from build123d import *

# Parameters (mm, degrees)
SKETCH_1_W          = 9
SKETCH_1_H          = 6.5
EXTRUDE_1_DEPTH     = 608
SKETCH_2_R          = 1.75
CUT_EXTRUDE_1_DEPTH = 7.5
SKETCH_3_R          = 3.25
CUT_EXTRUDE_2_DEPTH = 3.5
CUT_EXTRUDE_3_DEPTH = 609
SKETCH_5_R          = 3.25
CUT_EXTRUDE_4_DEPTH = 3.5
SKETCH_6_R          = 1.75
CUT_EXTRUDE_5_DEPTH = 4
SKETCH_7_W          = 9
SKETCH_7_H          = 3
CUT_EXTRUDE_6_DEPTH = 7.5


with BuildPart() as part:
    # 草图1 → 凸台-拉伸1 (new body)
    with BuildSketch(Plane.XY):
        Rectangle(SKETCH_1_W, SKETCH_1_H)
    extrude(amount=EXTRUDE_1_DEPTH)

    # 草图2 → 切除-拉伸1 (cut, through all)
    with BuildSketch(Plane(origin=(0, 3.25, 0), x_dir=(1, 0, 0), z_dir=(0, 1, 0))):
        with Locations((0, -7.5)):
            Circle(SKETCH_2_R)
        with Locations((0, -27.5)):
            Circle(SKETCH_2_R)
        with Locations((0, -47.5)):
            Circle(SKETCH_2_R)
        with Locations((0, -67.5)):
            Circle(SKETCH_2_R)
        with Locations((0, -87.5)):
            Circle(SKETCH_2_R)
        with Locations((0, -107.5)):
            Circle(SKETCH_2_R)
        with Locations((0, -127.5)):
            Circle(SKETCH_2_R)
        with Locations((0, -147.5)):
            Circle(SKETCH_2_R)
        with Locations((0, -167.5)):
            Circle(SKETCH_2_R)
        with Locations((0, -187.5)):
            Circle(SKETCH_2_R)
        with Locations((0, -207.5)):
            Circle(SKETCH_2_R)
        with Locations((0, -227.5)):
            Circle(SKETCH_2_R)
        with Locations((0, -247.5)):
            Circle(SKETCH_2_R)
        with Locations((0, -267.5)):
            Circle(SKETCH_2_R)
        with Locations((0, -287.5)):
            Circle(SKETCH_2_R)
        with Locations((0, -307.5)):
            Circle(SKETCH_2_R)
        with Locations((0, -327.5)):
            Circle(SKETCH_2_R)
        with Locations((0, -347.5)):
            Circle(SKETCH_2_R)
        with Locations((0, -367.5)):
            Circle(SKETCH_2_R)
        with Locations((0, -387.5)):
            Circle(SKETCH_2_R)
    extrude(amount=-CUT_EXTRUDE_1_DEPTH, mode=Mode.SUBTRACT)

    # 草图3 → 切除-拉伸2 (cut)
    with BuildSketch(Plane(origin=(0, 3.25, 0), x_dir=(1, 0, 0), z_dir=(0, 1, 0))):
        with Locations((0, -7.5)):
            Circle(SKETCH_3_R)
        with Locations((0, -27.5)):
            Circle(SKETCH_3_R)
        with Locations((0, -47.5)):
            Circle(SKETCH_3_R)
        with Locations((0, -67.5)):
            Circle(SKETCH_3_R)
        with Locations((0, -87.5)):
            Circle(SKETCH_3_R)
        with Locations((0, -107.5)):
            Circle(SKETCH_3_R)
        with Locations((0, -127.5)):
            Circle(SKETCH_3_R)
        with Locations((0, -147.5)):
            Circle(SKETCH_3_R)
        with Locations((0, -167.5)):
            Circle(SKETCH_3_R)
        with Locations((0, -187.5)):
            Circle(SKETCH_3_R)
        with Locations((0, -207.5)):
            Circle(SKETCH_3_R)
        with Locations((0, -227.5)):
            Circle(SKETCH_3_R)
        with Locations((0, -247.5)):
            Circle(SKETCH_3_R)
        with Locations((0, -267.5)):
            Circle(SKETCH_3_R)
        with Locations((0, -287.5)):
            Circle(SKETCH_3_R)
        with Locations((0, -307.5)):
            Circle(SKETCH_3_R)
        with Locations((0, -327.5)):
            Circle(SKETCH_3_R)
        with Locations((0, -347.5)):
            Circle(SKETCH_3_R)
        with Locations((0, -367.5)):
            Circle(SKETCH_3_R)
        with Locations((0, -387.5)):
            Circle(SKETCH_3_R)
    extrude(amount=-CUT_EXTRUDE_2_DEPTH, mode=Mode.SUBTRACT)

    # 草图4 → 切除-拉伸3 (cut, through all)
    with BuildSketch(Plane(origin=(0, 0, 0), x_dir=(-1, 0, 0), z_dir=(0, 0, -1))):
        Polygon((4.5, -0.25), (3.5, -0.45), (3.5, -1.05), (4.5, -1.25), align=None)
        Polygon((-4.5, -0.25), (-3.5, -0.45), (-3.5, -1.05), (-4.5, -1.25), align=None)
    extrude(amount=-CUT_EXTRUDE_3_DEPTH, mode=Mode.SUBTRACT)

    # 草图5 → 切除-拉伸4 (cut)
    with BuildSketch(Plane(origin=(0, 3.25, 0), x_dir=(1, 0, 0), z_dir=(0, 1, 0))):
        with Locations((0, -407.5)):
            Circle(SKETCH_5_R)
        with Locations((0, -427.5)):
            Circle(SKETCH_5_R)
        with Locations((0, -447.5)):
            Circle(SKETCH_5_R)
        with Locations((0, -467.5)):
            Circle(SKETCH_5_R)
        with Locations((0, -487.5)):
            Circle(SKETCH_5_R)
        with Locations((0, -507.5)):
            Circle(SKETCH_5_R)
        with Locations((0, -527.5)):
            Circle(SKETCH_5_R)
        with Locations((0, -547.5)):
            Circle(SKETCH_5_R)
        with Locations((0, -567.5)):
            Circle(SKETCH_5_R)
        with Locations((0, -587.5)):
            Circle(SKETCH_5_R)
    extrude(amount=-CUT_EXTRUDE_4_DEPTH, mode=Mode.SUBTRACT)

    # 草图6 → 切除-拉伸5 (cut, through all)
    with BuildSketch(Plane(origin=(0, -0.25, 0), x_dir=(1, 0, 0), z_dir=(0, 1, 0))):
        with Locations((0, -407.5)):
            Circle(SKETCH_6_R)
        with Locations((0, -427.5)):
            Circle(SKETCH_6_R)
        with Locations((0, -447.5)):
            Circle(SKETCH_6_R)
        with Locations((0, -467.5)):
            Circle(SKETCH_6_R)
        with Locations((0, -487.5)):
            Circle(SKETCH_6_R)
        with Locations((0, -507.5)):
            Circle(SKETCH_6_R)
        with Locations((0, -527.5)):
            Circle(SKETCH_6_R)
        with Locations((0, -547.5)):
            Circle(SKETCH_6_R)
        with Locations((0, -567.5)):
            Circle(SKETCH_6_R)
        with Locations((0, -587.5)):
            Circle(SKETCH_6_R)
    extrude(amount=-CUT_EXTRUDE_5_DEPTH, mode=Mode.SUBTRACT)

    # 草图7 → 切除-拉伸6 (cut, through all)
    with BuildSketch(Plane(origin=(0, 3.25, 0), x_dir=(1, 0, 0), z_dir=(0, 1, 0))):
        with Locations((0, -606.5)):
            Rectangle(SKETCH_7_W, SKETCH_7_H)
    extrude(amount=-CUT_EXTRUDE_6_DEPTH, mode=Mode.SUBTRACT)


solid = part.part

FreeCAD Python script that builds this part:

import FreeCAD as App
import Part
import Sketcher
from FreeCAD import Vector
Q = App.Units.Quantity

doc = App.newDocument("Part")
body = doc.addObject("PartDesign::Body", "Body")

# Sketch on XY plane
sketch1 = body.newObject("Sketcher::SketchObject", "Sketch")
sketch1.AttachmentSupport = (doc.getObject("XY_Plane"), [""])
sketch1.MapMode = "FlatFace"
sketch1.addGeometry([
    Part.LineSegment(Vector(-4, 3, 0), Vector(-4, -3, 0)),
    Part.LineSegment(Vector(-4, -3, 0), Vector(4, -3, 0)),
    Part.LineSegment(Vector(4, -3, 0), Vector(4, 3, 0)),
    Part.LineSegment(Vector(4, 3, 0), Vector(-4, 3, 0)),
], False)
sketch1.addConstraint([
    Sketcher.Constraint("Coincident", 0, 2, 1, 1),
    Sketcher.Constraint("Coincident", 1, 2, 2, 1),
    Sketcher.Constraint("Coincident", 2, 2, 3, 1),
    Sketcher.Constraint("Coincident", 3, 2, 0, 1),
    Sketcher.Constraint("Vertical", 0),
    Sketcher.Constraint("Horizontal", 1),
    Sketcher.Constraint("Vertical", 2),
    Sketcher.Constraint("Horizontal", 3),
    Sketcher.Constraint("Symmetric", 0, 2, 2, 2, -1, 1),
    Sketcher.Constraint("DistanceX", 1, 1, 1, 2, Q("9 mm")),
    Sketcher.Constraint("DistanceY", 0, 2, 0, 1, Q("6.5 mm")),
])
pad1 = body.newObject("PartDesign::Pad", "Pad")
pad1.Profile = sketch1
pad1.Length = 608

# Sketch on XZ plane
sketch2 = body.newObject("Sketcher::SketchObject", "Sketch001")
sketch2.AttachmentSupport = (doc.getObject("XZ_Plane"), [""])
sketch2.MapMode = "FlatFace"
sketch2.AttachmentOffset = App.Placement(Vector(0, 0, -3.25), App.Rotation())
sketch2.addGeometry([
    Part.Circle(Vector(0, 7.5, 0), Vector(0, 0, 1), 1.8),  # 0
    Part.Circle(Vector(0, 27.5, 0), Vector(0, 0, 1), 1.8),  # 1
    Part.Circle(Vector(0, 47.5, 0), Vector(0, 0, 1), 1.8),  # 2
    Part.Circle(Vector(0, 67.5, 0), Vector(0, 0, 1), 1.8),  # 3
    Part.Circle(Vector(0, 87.5, 0), Vector(0, 0, 1), 1.8),  # 4
    Part.Circle(Vector(0, 107.5, 0), Vector(0, 0, 1), 1.8),  # 5
    Part.Circle(Vector(0, 127.5, 0), Vector(0, 0, 1), 1.8),  # 6
    Part.Circle(Vector(0, 147.5, 0), Vector(0, 0, 1), 1.8),  # 7
    Part.Circle(Vector(0, 167.5, 0), Vector(0, 0, 1), 1.8),  # 8
    Part.Circle(Vector(0, 187.5, 0), Vector(0, 0, 1), 1.8),  # 9
    Part.Circle(Vector(0, 207.5, 0), Vector(0, 0, 1), 1.8),  # 10
    Part.Circle(Vector(0, 227.5, 0), Vector(0, 0, 1), 1.8),  # 11
    Part.Circle(Vector(0, 247.5, 0), Vector(0, 0, 1), 1.8),  # 12
    Part.Circle(Vector(0, 267.5, 0), Vector(0, 0, 1), 1.8),  # 13
    Part.Circle(Vector(0, 287.5, 0), Vector(0, 0, 1), 1.8),  # 14
    Part.Circle(Vector(0, 307.5, 0), Vector(0, 0, 1), 1.8),  # 15
    Part.Circle(Vector(0, 327.5, 0), Vector(0, 0, 1), 1.8),  # 16
    Part.Circle(Vector(0, 347.5, 0), Vector(0, 0, 1), 1.8),  # 17
    Part.Circle(Vector(0, 367.5, 0), Vector(0, 0, 1), 1.8),  # 18
    Part.Circle(Vector(0, 387.5, 0), Vector(0, 0, 1), 1.8),  # 19
], False)
sketch2.addConstraint([
    Sketcher.Constraint("Equal", 0, 1),
    Sketcher.Constraint("Equal", 1, 2),
    Sketcher.Constraint("Equal", 2, 3),
    Sketcher.Constraint("Equal", 3, 4),
    Sketcher.Constraint("Equal", 4, 5),
    Sketcher.Constraint("Equal", 5, 6),
    Sketcher.Constraint("Equal", 6, 7),
    Sketcher.Constraint("Equal", 7, 8),
    Sketcher.Constraint("Equal", 8, 9),
    Sketcher.Constraint("Equal", 9, 10),
    Sketcher.Constraint("Equal", 10, 11),
    Sketcher.Constraint("Equal", 11, 12),
    Sketcher.Constraint("Equal", 12, 13),
    Sketcher.Constraint("Equal", 13, 14),
    Sketcher.Constraint("Equal", 14, 15),
    Sketcher.Constraint("Equal", 15, 16),
    Sketcher.Constraint("Equal", 16, 17),
    Sketcher.Constraint("Equal", 17, 18),
    Sketcher.Constraint("Equal", 18, 19),
    Sketcher.Constraint("PointOnObject", 0, 3, -2),
    Sketcher.Constraint("PointOnObject", 1, 3, -2),
    Sketcher.Constraint("PointOnObject", 2, 3, -2),
    Sketcher.Constraint("PointOnObject", 3, 3, -2),
    Sketcher.Constraint("PointOnObject", 4, 3, -2),
    Sketcher.Constraint("PointOnObject", 5, 3, -2),
    Sketcher.Constraint("PointOnObject", 6, 3, -2),
    Sketcher.Constraint("PointOnObject", 7, 3, -2),
    Sketcher.Constraint("PointOnObject", 8, 3, -2),
    Sketcher.Constraint("PointOnObject", 9, 3, -2),
    Sketcher.Constraint("PointOnObject", 10, 3, -2),
    Sketcher.Constraint("PointOnObject", 11, 3, -2),
    Sketcher.Constraint("PointOnObject", 12, 3, -2),
    Sketcher.Constraint("PointOnObject", 13, 3, -2),
    Sketcher.Constraint("PointOnObject", 14, 3, -2),
    Sketcher.Constraint("PointOnObject", 15, 3, -2),
    Sketcher.Constraint("PointOnObject", 16, 3, -2),
    Sketcher.Constraint("PointOnObject", 17, 3, -2),
    Sketcher.Constraint("PointOnObject", 18, 3, -2),
    Sketcher.Constraint("PointOnObject", 19, 3, -2),
    Sketcher.Constraint("Diameter", 0, Q("3.5 mm")),
    Sketcher.Constraint("DistanceY", 0, 3, 1, 3, Q("20 mm")),
    Sketcher.Constraint("DistanceY", 1, 3, 2, 3, Q("20 mm")),
    Sketcher.Constraint("DistanceY", 2, 3, 3, 3, Q("20 mm")),
    Sketcher.Constraint("DistanceY", 3, 3, 4, 3, Q("20 mm")),
    Sketcher.Constraint("DistanceY", 4, 3, 5, 3, Q("20 mm")),
    Sketcher.Constraint("DistanceY", 5, 3, 6, 3, Q("20 mm")),
    Sketcher.Constraint("DistanceY", 6, 3, 7, 3, Q("20 mm")),
    Sketcher.Constraint("DistanceY", 7, 3, 8, 3, Q("20 mm")),
    Sketcher.Constraint("DistanceY", 8, 3, 9, 3, Q("20 mm")),
    Sketcher.Constraint("DistanceY", 9, 3, 10, 3, Q("20 mm")),
    Sketcher.Constraint("DistanceY", 10, 3, 11, 3, Q("20 mm")),
    Sketcher.Constraint("DistanceY", 11, 3, 12, 3, Q("20 mm")),
    Sketcher.Constraint("DistanceY", 12, 3, 13, 3, Q("20 mm")),
    Sketcher.Constraint("DistanceY", 13, 3, 14, 3, Q("20 mm")),
    Sketcher.Constraint("DistanceY", 14, 3, 15, 3, Q("20 mm")),
    Sketcher.Constraint("DistanceY", 15, 3, 16, 3, Q("20 mm")),
    Sketcher.Constraint("DistanceY", 16, 3, 17, 3, Q("20 mm")),
    Sketcher.Constraint("DistanceY", 17, 3, 18, 3, Q("20 mm")),
    Sketcher.Constraint("DistanceY", 18, 3, 19, 3, Q("20 mm")),
    Sketcher.Constraint("DistanceY", -1, 1, 0, 3, Q("7.5 mm")),
])
pocket1 = body.newObject("PartDesign::Pocket", "Pocket")
pocket1.Profile = sketch2
pocket1.Type = "ThroughAll"
pocket1.Reversed = True

# Sketch on XZ plane
sketch3 = body.newObject("Sketcher::SketchObject", "Sketch002")
sketch3.AttachmentSupport = (doc.getObject("XZ_Plane"), [""])
sketch3.MapMode = "FlatFace"
sketch3.AttachmentOffset = App.Placement(Vector(0, 0, -3.25), App.Rotation())
sketch3.addGeometry([
    Part.Circle(Vector(0, 7.5, 0), Vector(0, 0, 1), 3.2),  # 0
    Part.Circle(Vector(0, 27.5, 0), Vector(0, 0, 1), 3.2),  # 1
    Part.Circle(Vector(0, 47.5, 0), Vector(0, 0, 1), 3.2),  # 2
    Part.Circle(Vector(0, 67.5, 0), Vector(0, 0, 1), 3.2),  # 3
    Part.Circle(Vector(0, 87.5, 0), Vector(0, 0, 1), 3.2),  # 4
    Part.Circle(Vector(0, 107.5, 0), Vector(0, 0, 1), 3.2),  # 5
    Part.Circle(Vector(0, 127.5, 0), Vector(0, 0, 1), 3.2),  # 6
    Part.Circle(Vector(0, 147.5, 0), Vector(0, 0, 1), 3.2),  # 7
    Part.Circle(Vector(0, 167.5, 0), Vector(0, 0, 1), 3.2),  # 8
    Part.Circle(Vector(0, 187.5, 0), Vector(0, 0, 1), 3.2),  # 9
    Part.Circle(Vector(0, 207.5, 0), Vector(0, 0, 1), 3.2),  # 10
    Part.Circle(Vector(0, 227.5, 0), Vector(0, 0, 1), 3.2),  # 11
    Part.Circle(Vector(0, 247.5, 0), Vector(0, 0, 1), 3.2),  # 12
    Part.Circle(Vector(0, 267.5, 0), Vector(0, 0, 1), 3.2),  # 13
    Part.Circle(Vector(0, 287.5, 0), Vector(0, 0, 1), 3.2),  # 14
    Part.Circle(Vector(0, 307.5, 0), Vector(0, 0, 1), 3.2),  # 15
    Part.Circle(Vector(0, 327.5, 0), Vector(0, 0, 1), 3.2),  # 16
    Part.Circle(Vector(0, 347.5, 0), Vector(0, 0, 1), 3.2),  # 17
    Part.Circle(Vector(0, 367.5, 0), Vector(0, 0, 1), 3.2),  # 18
    Part.Circle(Vector(0, 387.5, 0), Vector(0, 0, 1), 3.2),  # 19
], False)
sketch3.addConstraint([
    Sketcher.Constraint("Equal", 0, 1),
    Sketcher.Constraint("Equal", 1, 2),
    Sketcher.Constraint("Equal", 2, 3),
    Sketcher.Constraint("Equal", 3, 4),
    Sketcher.Constraint("Equal", 4, 5),
    Sketcher.Constraint("Equal", 5, 6),
    Sketcher.Constraint("Equal", 6, 7),
    Sketcher.Constraint("Equal", 7, 8),
    Sketcher.Constraint("Equal", 8, 9),
    Sketcher.Constraint("Equal", 9, 10),
    Sketcher.Constraint("Equal", 10, 11),
    Sketcher.Constraint("Equal", 11, 12),
    Sketcher.Constraint("Equal", 12, 13),
    Sketcher.Constraint("Equal", 13, 14),
    Sketcher.Constraint("Equal", 14, 15),
    Sketcher.Constraint("Equal", 15, 16),
    Sketcher.Constraint("Equal", 16, 17),
    Sketcher.Constraint("Equal", 17, 18),
    Sketcher.Constraint("Equal", 18, 19),
    Sketcher.Constraint("PointOnObject", 0, 3, -2),
    Sketcher.Constraint("PointOnObject", 1, 3, -2),
    Sketcher.Constraint("PointOnObject", 2, 3, -2),
    Sketcher.Constraint("PointOnObject", 3, 3, -2),
    Sketcher.Constraint("PointOnObject", 4, 3, -2),
    Sketcher.Constraint("PointOnObject", 5, 3, -2),
    Sketcher.Constraint("PointOnObject", 6, 3, -2),
    Sketcher.Constraint("PointOnObject", 7, 3, -2),
    Sketcher.Constraint("PointOnObject", 8, 3, -2),
    Sketcher.Constraint("PointOnObject", 9, 3, -2),
    Sketcher.Constraint("PointOnObject", 10, 3, -2),
    Sketcher.Constraint("PointOnObject", 11, 3, -2),
    Sketcher.Constraint("PointOnObject", 12, 3, -2),
    Sketcher.Constraint("PointOnObject", 13, 3, -2),
    Sketcher.Constraint("PointOnObject", 14, 3, -2),
    Sketcher.Constraint("PointOnObject", 15, 3, -2),
    Sketcher.Constraint("PointOnObject", 16, 3, -2),
    Sketcher.Constraint("PointOnObject", 17, 3, -2),
    Sketcher.Constraint("PointOnObject", 18, 3, -2),
    Sketcher.Constraint("PointOnObject", 19, 3, -2),
    Sketcher.Constraint("Diameter", 0, Q("6.5 mm")),
    Sketcher.Constraint("DistanceY", 0, 3, 1, 3, Q("20 mm")),
    Sketcher.Constraint("DistanceY", 1, 3, 2, 3, Q("20 mm")),
    Sketcher.Constraint("DistanceY", 2, 3, 3, 3, Q("20 mm")),
    Sketcher.Constraint("DistanceY", 3, 3, 4, 3, Q("20 mm")),
    Sketcher.Constraint("DistanceY", 4, 3, 5, 3, Q("20 mm")),
    Sketcher.Constraint("DistanceY", 5, 3, 6, 3, Q("20 mm")),
    Sketcher.Constraint("DistanceY", 6, 3, 7, 3, Q("20 mm")),
    Sketcher.Constraint("DistanceY", 7, 3, 8, 3, Q("20 mm")),
    Sketcher.Constraint("DistanceY", 8, 3, 9, 3, Q("20 mm")),
    Sketcher.Constraint("DistanceY", 9, 3, 10, 3, Q("20 mm")),
    Sketcher.Constraint("DistanceY", 10, 3, 11, 3, Q("20 mm")),
    Sketcher.Constraint("DistanceY", 11, 3, 12, 3, Q("20 mm")),
    Sketcher.Constraint("DistanceY", 12, 3, 13, 3, Q("20 mm")),
    Sketcher.Constraint("DistanceY", 13, 3, 14, 3, Q("20 mm")),
    Sketcher.Constraint("DistanceY", 14, 3, 15, 3, Q("20 mm")),
    Sketcher.Constraint("DistanceY", 15, 3, 16, 3, Q("20 mm")),
    Sketcher.Constraint("DistanceY", 16, 3, 17, 3, Q("20 mm")),
    Sketcher.Constraint("DistanceY", 17, 3, 18, 3, Q("20 mm")),
    Sketcher.Constraint("DistanceY", 18, 3, 19, 3, Q("20 mm")),
    Sketcher.Constraint("DistanceY", -1, 1, 0, 3, Q("7.5 mm")),
])
pocket2 = body.newObject("PartDesign::Pocket", "Pocket001")
pocket2.Profile = sketch3
pocket2.Length = 3.5
pocket2.Reversed = True

# Sketch on XY plane
sketch4 = body.newObject("Sketcher::SketchObject", "Sketch003")
sketch4.AttachmentSupport = (doc.getObject("XY_Plane"), [""])
sketch4.MapMode = "FlatFace"
sketch4.addGeometry([
    Part.LineSegment(Vector(-4.5, -0.2, 0), Vector(-3.5, -0.5, 0)),  # 0
    Part.LineSegment(Vector(-3.5, -0.5, 0), Vector(-3.5, -1.1, 0)),  # 1
    Part.LineSegment(Vector(-3.5, -1.1, 0), Vector(-4.5, -1.2, 0)),  # 2
    Part.LineSegment(Vector(-4.5, -1.2, 0), Vector(-4.5, -0.2, 0)),  # 3
    Part.LineSegment(Vector(3.5, -0.5, 0), Vector(4.5, -0.2, 0)),  # 4
    Part.LineSegment(Vector(4.5, -0.2, 0), Vector(4.5, -1.2, 0)),  # 5
    Part.LineSegment(Vector(4.5, -1.2, 0), Vector(3.5, -1.1, 0)),  # 6
    Part.LineSegment(Vector(3.5, -1.1, 0), Vector(3.5, -0.5, 0)),  # 7
], False)
sketch4.addConstraint([
    Sketcher.Constraint("Coincident", 0, 2, 1, 1),
    Sketcher.Constraint("Coincident", 1, 2, 2, 1),
    Sketcher.Constraint("Coincident", 2, 2, 3, 1),
    Sketcher.Constraint("Coincident", 3, 2, 0, 1),
    Sketcher.Constraint("Coincident", 4, 2, 5, 1),
    Sketcher.Constraint("Coincident", 5, 2, 6, 1),
    Sketcher.Constraint("Coincident", 6, 2, 7, 1),
    Sketcher.Constraint("Coincident", 7, 2, 4, 1),
    Sketcher.Constraint("Vertical", 1),
    Sketcher.Constraint("Vertical", 3),
    Sketcher.Constraint("Vertical", 5),
    Sketcher.Constraint("Vertical", 7),
    Sketcher.Constraint("Symmetric", 3, 2, 4, 2, -2),
    Sketcher.Constraint("Symmetric", 1, 2, 6, 2, -2),
    Sketcher.Constraint("Parallel", 2, 4),
    Sketcher.Constraint("Parallel", 0, 6),
    Sketcher.Constraint("Horizontal", 2, 2, 5, 2),
    Sketcher.Constraint("DistanceY", 3, 1, 3, 2, Q("1 mm")),
    Sketcher.Constraint("DistanceY", 1, 2, 1, 1, Q("0.6 mm")),
    Sketcher.Constraint("DistanceX", 2, 2, 1, 2, Q("1 mm")),
    Sketcher.Constraint("DistanceX", 0, 2, 4, 2, Q("8 mm")),
    Sketcher.Constraint("DistanceY", 0, 2, -1, 1, Q("0.45 mm")),
])
pocket3 = body.newObject("PartDesign::Pocket", "Pocket002")
pocket3.Profile = sketch4
pocket3.Type = "ThroughAll"
pocket3.Reversed = True

# Sketch on XZ plane
sketch5 = body.newObject("Sketcher::SketchObject", "Sketch004")
sketch5.AttachmentSupport = (doc.getObject("XZ_Plane"), [""])
sketch5.MapMode = "FlatFace"
sketch5.AttachmentOffset = App.Placement(Vector(0, 0, -3.25), App.Rotation())
sketch5.addGeometry([
    Part.Circle(Vector(0, 407.5, 0), Vector(0, 0, 1), 3.2),  # 0
    Part.Circle(Vector(0, 427.5, 0), Vector(0, 0, 1), 3.2),  # 1
    Part.Circle(Vector(0, 447.5, 0), Vector(0, 0, 1), 3.2),  # 2
    Part.Circle(Vector(0, 467.5, 0), Vector(0, 0, 1), 3.2),  # 3
    Part.Circle(Vector(0, 487.5, 0), Vector(0, 0, 1), 3.2),  # 4
    Part.Circle(Vector(0, 507.5, 0), Vector(0, 0, 1), 3.2),  # 5
    Part.Circle(Vector(0, 527.5, 0), Vector(0, 0, 1), 3.2),  # 6
    Part.Circle(Vector(0, 547.5, 0), Vector(0, 0, 1), 3.2),  # 7
    Part.Circle(Vector(0, 567.5, 0), Vector(0, 0, 1), 3.2),  # 8
    Part.Circle(Vector(0, 587.5, 0), Vector(0, 0, 1), 3.2),  # 9
], False)
sketch5.addConstraint([
    Sketcher.Constraint("Equal", 0, 1),
    Sketcher.Constraint("Equal", 1, 2),
    Sketcher.Constraint("Equal", 2, 3),
    Sketcher.Constraint("Equal", 3, 4),
    Sketcher.Constraint("Equal", 4, 5),
    Sketcher.Constraint("Equal", 5, 6),
    Sketcher.Constraint("Equal", 6, 7),
    Sketcher.Constraint("Equal", 7, 8),
    Sketcher.Constraint("Equal", 8, 9),
    Sketcher.Constraint("PointOnObject", 0, 3, -2),
    Sketcher.Constraint("PointOnObject", 1, 3, -2),
    Sketcher.Constraint("PointOnObject", 2, 3, -2),
    Sketcher.Constraint("PointOnObject", 3, 3, -2),
    Sketcher.Constraint("PointOnObject", 4, 3, -2),
    Sketcher.Constraint("PointOnObject", 5, 3, -2),
    Sketcher.Constraint("PointOnObject", 6, 3, -2),
    Sketcher.Constraint("PointOnObject", 7, 3, -2),
    Sketcher.Constraint("PointOnObject", 8, 3, -2),
    Sketcher.Constraint("PointOnObject", 9, 3, -2),
    Sketcher.Constraint("Diameter", 0, Q("6.5 mm")),
    Sketcher.Constraint("DistanceY", 0, 3, 1, 3, Q("20 mm")),
    Sketcher.Constraint("DistanceY", 1, 3, 2, 3, Q("20 mm")),
    Sketcher.Constraint("DistanceY", 2, 3, 3, 3, Q("20 mm")),
    Sketcher.Constraint("DistanceY", 3, 3, 4, 3, Q("20 mm")),
    Sketcher.Constraint("DistanceY", 4, 3, 5, 3, Q("20 mm")),
    Sketcher.Constraint("DistanceY", 5, 3, 6, 3, Q("20 mm")),
    Sketcher.Constraint("DistanceY", 6, 3, 7, 3, Q("20 mm")),
    Sketcher.Constraint("DistanceY", 7, 3, 8, 3, Q("20 mm")),
    Sketcher.Constraint("DistanceY", 8, 3, 9, 3, Q("20 mm")),
    Sketcher.Constraint("DistanceY", -1, 1, 0, 3, Q("407.5 mm")),
])
pocket4 = body.newObject("PartDesign::Pocket", "Pocket003")
pocket4.Profile = sketch5
pocket4.Length = 3.5
pocket4.Reversed = True

# Sketch on XZ plane
sketch6 = body.newObject("Sketcher::SketchObject", "Sketch005")
sketch6.AttachmentSupport = (doc.getObject("XZ_Plane"), [""])
sketch6.MapMode = "FlatFace"
sketch6.AttachmentOffset = App.Placement(Vector(0, 0, 0.25), App.Rotation())
sketch6.addGeometry([
    Part.Circle(Vector(0, 407.5, 0), Vector(0, 0, 1), 1.8),  # 0
    Part.Circle(Vector(0, 427.5, 0), Vector(0, 0, 1), 1.8),  # 1
    Part.Circle(Vector(0, 447.5, 0), Vector(0, 0, 1), 1.8),  # 2
    Part.Circle(Vector(0, 467.5, 0), Vector(0, 0, 1), 1.8),  # 3
    Part.Circle(Vector(0, 487.5, 0), Vector(0, 0, 1), 1.8),  # 4
    Part.Circle(Vector(0, 507.5, 0), Vector(0, 0, 1), 1.8),  # 5
    Part.Circle(Vector(0, 527.5, 0), Vector(0, 0, 1), 1.8),  # 6
    Part.Circle(Vector(0, 547.5, 0), Vector(0, 0, 1), 1.8),  # 7
    Part.Circle(Vector(0, 567.5, 0), Vector(0, 0, 1), 1.8),  # 8
    Part.Circle(Vector(0, 587.5, 0), Vector(0, 0, 1), 1.8),  # 9
], False)
sketch6.addConstraint([
    Sketcher.Constraint("Equal", 0, 1),
    Sketcher.Constraint("Equal", 1, 2),
    Sketcher.Constraint("Equal", 2, 3),
    Sketcher.Constraint("Equal", 3, 4),
    Sketcher.Constraint("Equal", 4, 5),
    Sketcher.Constraint("Equal", 5, 6),
    Sketcher.Constraint("Equal", 6, 7),
    Sketcher.Constraint("Equal", 7, 8),
    Sketcher.Constraint("Equal", 8, 9),
    Sketcher.Constraint("PointOnObject", 0, 3, -2),
    Sketcher.Constraint("PointOnObject", 1, 3, -2),
    Sketcher.Constraint("PointOnObject", 2, 3, -2),
    Sketcher.Constraint("PointOnObject", 3, 3, -2),
    Sketcher.Constraint("PointOnObject", 4, 3, -2),
    Sketcher.Constraint("PointOnObject", 5, 3, -2),
    Sketcher.Constraint("PointOnObject", 6, 3, -2),
    Sketcher.Constraint("PointOnObject", 7, 3, -2),
    Sketcher.Constraint("PointOnObject", 8, 3, -2),
    Sketcher.Constraint("PointOnObject", 9, 3, -2),
    Sketcher.Constraint("Diameter", 0, Q("3.5 mm")),
    Sketcher.Constraint("DistanceY", 0, 3, 1, 3, Q("20 mm")),
    Sketcher.Constraint("DistanceY", 1, 3, 2, 3, Q("20 mm")),
    Sketcher.Constraint("DistanceY", 2, 3, 3, 3, Q("20 mm")),
    Sketcher.Constraint("DistanceY", 3, 3, 4, 3, Q("20 mm")),
    Sketcher.Constraint("DistanceY", 4, 3, 5, 3, Q("20 mm")),
    Sketcher.Constraint("DistanceY", 5, 3, 6, 3, Q("20 mm")),
    Sketcher.Constraint("DistanceY", 6, 3, 7, 3, Q("20 mm")),
    Sketcher.Constraint("DistanceY", 7, 3, 8, 3, Q("20 mm")),
    Sketcher.Constraint("DistanceY", 8, 3, 9, 3, Q("20 mm")),
    Sketcher.Constraint("DistanceY", -1, 1, 0, 3, Q("407.5 mm")),
])
pocket5 = body.newObject("PartDesign::Pocket", "Pocket004")
pocket5.Profile = sketch6
pocket5.Type = "ThroughAll"
pocket5.Reversed = True

# Sketch on XZ plane
sketch7 = body.newObject("Sketcher::SketchObject", "Sketch006")
sketch7.AttachmentSupport = (doc.getObject("XZ_Plane"), [""])
sketch7.MapMode = "FlatFace"
sketch7.AttachmentOffset = App.Placement(Vector(0, 0, -3.25), App.Rotation())
sketch7.addGeometry([
    Part.LineSegment(Vector(-4.5, 605, 0), Vector(-4.5, 608, 0)),
    Part.LineSegment(Vector(-4.5, 608, 0), Vector(4.5, 608, 0)),
    Part.LineSegment(Vector(4.5, 608, 0), Vector(4.5, 605, 0)),
    Part.LineSegment(Vector(4.5, 605, 0), Vector(-4.5, 605, 0)),
], False)
sketch7.addConstraint([
    Sketcher.Constraint("Coincident", 0, 2, 1, 1),
    Sketcher.Constraint("Coincident", 1, 2, 2, 1),
    Sketcher.Constraint("Coincident", 2, 2, 3, 1),
    Sketcher.Constraint("Coincident", 3, 2, 0, 1),
    Sketcher.Constraint("Vertical", 0),
    Sketcher.Constraint("Horizontal", 1),
    Sketcher.Constraint("Vertical", 2),
    Sketcher.Constraint("Horizontal", 3),
    Sketcher.Constraint("DistanceX", 1, 1, 1, 2, Q("9 mm")),
    Sketcher.Constraint("DistanceY", 0, 1, 0, 2, Q("3 mm")),
    Sketcher.Constraint("DistanceY", -1, 1, 0, 2, Q("608 mm")),
    Sketcher.Constraint("DistanceX", 0, 2, -1, 1, Q("4.5 mm")),
])
pocket6 = body.newObject("PartDesign::Pocket", "Pocket005")
pocket6.Profile = sketch7
pocket6.Type = "ThroughAll"
pocket6.Reversed = True

doc.recompute()
